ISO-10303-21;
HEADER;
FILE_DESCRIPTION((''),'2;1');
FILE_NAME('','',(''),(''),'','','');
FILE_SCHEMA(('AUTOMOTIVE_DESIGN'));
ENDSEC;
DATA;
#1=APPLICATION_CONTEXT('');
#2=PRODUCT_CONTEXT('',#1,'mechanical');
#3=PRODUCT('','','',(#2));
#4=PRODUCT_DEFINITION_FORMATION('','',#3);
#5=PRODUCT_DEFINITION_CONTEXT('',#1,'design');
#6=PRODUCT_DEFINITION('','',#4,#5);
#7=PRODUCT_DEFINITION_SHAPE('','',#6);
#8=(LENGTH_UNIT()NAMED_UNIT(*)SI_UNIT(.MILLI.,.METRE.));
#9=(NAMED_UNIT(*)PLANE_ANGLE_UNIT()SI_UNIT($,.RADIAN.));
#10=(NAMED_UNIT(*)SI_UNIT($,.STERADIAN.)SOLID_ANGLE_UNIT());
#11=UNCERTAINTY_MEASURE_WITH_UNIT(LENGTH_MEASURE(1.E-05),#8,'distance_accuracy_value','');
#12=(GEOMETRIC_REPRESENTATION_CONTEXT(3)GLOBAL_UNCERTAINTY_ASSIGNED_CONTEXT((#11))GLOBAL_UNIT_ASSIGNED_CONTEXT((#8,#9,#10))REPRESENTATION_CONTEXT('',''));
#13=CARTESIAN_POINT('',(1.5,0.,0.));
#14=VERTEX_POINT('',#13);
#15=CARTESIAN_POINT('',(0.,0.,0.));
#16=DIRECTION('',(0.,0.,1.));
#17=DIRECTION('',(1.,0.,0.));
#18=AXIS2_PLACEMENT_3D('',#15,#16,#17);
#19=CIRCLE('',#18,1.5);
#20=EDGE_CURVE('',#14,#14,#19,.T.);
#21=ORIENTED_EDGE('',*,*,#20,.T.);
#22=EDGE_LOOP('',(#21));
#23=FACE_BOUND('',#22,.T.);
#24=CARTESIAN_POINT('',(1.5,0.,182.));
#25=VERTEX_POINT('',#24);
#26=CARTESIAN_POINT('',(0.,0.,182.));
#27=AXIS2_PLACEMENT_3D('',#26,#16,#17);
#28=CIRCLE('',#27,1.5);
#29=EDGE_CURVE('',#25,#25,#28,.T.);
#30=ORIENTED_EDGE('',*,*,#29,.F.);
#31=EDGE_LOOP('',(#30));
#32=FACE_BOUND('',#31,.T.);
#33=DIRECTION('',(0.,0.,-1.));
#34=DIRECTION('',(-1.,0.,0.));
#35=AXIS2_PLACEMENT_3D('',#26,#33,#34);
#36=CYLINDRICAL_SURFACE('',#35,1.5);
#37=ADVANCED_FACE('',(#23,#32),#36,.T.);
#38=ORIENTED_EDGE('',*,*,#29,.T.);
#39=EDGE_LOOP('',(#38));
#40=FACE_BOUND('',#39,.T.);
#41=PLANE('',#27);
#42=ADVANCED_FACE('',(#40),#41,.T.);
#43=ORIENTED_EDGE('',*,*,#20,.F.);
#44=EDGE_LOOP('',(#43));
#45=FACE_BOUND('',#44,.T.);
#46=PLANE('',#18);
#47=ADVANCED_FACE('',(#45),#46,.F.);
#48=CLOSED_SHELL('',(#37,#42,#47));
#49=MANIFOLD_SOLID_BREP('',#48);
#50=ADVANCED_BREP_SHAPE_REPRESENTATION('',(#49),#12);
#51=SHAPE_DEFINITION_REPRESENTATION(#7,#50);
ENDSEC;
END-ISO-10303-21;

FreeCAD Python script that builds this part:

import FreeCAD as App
import Part
import Sketcher

doc = App.newDocument("Part")
body = doc.addObject("PartDesign::Body", "Body")

# Sketch on XY plane
sketch1 = body.newObject("Sketcher::SketchObject", "Sketch")
sketch1.AttachmentSupport = (doc.getObject("XY_Plane"), [""])
sketch1.MapMode = "FlatFace"
sketch1.addGeometry(Part.Circle(App.Vector(0, 0, 0), App.Vector(0, 0, 1), 1.5), False)
sketch1.addConstraint([
    Sketcher.Constraint("Coincident", 0, 3, -1, 1),
    Sketcher.Constraint("Diameter", 0, 3.0),
])
pad1 = body.newObject("PartDesign::Pad", "Pad")
pad1.Profile = sketch1
pad1.Length = 182

doc.recompute()
